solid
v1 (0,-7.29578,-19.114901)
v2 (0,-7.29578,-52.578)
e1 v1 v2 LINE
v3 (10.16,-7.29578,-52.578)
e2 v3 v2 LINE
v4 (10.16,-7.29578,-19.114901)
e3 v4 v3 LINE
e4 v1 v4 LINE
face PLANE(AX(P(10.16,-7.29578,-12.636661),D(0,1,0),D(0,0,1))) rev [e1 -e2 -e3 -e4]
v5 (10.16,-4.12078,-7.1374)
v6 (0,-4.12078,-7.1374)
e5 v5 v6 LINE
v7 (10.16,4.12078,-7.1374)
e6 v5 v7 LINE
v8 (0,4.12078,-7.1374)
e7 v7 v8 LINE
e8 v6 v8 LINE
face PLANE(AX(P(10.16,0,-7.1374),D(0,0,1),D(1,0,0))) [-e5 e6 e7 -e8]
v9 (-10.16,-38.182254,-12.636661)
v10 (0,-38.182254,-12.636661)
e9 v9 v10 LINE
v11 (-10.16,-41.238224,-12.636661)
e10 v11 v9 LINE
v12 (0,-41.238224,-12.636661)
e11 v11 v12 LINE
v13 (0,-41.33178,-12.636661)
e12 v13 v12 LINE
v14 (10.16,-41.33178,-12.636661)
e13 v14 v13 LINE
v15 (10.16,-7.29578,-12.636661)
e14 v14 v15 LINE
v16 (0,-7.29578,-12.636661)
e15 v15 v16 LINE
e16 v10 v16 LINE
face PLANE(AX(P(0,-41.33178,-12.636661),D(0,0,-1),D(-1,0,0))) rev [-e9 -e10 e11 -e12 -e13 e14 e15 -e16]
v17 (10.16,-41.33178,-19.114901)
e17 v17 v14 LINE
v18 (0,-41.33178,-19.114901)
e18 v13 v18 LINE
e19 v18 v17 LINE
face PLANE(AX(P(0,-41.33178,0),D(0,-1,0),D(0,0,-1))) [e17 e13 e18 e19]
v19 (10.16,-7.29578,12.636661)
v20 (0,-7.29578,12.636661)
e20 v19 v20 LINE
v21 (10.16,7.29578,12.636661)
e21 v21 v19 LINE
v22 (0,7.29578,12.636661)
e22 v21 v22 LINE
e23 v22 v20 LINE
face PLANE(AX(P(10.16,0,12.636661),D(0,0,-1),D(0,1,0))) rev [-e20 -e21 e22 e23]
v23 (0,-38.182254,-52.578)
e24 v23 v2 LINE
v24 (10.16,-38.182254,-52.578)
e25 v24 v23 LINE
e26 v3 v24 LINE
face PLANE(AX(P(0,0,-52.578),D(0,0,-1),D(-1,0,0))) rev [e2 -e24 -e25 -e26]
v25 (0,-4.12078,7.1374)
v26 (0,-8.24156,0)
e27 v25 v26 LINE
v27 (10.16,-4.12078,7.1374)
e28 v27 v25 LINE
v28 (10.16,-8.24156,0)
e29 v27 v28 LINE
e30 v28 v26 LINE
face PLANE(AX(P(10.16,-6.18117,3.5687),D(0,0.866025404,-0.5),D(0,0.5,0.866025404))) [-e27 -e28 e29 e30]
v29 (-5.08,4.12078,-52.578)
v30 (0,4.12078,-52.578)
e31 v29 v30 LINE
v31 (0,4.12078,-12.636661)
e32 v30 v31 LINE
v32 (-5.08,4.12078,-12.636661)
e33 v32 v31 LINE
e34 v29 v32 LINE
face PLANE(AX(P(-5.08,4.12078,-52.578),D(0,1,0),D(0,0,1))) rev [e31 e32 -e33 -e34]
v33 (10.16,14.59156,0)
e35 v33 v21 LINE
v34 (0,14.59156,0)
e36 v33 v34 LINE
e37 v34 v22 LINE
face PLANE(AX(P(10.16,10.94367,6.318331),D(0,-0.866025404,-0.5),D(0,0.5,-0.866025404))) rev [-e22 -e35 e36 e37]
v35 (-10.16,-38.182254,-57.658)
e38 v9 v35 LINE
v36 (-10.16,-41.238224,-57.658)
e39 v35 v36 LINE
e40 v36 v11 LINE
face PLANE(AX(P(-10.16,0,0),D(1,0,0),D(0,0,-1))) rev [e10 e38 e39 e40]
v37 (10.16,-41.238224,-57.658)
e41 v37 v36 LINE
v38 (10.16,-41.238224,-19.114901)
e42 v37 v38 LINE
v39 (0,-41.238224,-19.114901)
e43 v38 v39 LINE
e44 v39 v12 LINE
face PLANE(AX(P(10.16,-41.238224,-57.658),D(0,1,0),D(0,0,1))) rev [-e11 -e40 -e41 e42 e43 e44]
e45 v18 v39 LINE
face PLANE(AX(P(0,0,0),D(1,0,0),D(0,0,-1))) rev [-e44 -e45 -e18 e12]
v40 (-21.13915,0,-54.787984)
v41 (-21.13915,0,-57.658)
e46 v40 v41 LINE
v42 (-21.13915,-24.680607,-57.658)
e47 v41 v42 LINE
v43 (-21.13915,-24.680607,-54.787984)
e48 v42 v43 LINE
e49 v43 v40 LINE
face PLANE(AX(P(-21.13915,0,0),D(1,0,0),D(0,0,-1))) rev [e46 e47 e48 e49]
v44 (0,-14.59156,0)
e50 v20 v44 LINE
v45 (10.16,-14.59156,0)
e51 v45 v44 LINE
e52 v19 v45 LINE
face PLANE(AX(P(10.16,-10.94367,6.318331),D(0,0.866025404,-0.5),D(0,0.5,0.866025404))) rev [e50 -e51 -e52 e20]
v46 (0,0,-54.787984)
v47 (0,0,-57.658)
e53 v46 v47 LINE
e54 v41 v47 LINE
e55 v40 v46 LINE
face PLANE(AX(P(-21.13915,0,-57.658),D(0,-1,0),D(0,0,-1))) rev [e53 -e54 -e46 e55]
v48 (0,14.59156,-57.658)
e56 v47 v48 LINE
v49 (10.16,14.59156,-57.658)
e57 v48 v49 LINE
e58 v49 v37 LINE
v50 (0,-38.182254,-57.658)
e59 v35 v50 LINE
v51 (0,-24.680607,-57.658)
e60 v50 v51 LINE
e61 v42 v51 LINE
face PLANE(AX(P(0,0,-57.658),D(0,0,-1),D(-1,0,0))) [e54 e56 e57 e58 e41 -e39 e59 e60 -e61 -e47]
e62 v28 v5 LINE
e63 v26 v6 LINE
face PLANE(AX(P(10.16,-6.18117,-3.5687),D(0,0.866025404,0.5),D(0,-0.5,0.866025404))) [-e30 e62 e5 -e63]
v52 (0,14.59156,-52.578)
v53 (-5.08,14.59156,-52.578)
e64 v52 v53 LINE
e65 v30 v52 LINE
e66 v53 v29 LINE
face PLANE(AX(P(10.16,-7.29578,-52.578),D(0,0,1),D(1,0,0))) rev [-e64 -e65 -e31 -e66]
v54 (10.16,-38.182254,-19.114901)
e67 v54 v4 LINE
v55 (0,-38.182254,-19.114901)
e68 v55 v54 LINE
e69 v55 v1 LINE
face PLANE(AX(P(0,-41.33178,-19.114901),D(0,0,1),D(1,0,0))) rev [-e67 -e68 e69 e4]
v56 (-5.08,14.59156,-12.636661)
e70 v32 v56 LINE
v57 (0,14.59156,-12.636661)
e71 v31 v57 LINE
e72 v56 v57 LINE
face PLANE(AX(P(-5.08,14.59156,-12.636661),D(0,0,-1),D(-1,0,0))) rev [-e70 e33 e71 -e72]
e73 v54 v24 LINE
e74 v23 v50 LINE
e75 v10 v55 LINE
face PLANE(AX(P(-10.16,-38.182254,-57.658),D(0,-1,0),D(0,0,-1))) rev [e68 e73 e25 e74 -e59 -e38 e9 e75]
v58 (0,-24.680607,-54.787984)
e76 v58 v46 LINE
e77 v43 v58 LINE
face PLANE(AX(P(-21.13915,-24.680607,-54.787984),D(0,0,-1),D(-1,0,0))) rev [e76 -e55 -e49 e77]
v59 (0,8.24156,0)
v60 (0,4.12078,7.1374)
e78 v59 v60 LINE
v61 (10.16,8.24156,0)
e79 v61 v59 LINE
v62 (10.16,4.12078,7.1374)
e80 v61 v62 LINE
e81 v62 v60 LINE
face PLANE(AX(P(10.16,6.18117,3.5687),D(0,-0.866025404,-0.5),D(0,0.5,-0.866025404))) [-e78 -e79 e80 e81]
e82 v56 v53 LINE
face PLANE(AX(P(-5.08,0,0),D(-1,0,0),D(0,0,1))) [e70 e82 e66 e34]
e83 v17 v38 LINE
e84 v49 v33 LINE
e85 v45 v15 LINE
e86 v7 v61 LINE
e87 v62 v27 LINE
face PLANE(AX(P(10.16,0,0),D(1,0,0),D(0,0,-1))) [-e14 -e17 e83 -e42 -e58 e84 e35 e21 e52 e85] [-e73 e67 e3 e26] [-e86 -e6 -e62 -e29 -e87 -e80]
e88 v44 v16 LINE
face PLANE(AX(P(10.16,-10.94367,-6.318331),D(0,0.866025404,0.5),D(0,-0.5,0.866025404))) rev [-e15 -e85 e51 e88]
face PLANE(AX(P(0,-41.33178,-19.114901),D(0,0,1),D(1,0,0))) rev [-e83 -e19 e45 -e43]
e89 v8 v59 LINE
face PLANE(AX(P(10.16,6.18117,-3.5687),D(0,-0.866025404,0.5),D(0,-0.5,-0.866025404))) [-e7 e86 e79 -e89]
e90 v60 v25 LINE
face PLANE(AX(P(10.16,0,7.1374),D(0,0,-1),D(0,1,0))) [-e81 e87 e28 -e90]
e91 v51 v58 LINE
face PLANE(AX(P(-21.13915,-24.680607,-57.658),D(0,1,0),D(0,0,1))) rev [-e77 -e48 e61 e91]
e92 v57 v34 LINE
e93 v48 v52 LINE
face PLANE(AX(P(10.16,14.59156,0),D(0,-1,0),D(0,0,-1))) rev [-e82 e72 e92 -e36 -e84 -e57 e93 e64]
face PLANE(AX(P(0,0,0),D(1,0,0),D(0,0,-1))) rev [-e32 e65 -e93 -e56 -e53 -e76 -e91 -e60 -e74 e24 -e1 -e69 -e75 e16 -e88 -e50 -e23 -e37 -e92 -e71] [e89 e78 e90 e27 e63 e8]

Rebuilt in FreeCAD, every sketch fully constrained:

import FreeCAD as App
import Part
import Sketcher
Q = App.Units.Quantity


def add_polygon(sketch, points):
    """Adds a closed chain of lines whose ends are joined by coincident constraints."""
    first, n = sketch.GeometryCount, len(points)
    for a, b in zip(points, points[1:] + points[:1]):
        sketch.addGeometry(Part.LineSegment(App.Vector(*a, 0), App.Vector(*b, 0)), False)
    for i in range(n):
        sketch.addConstraint(Sketcher.Constraint("Coincident", first + i, 2, first + (i + 1) % n, 1))

doc = App.newDocument("Part")
params = doc.addObject("Spreadsheet::Sheet", "Params")
for row, (alias, value) in enumerate([
    ("pad1_length", "0.4 in"),
    ("sketch2_height", "2.07 in"),
    ("pad2_length", "0.4 in"),
    ("pad3_length", "0.2 in"),
    ("sketch4_width", "0.4 in"),
    ("pad4_length", "0.2 in"),
    ("sketch5_width", "0.4 in"),
    ("pad5_length", "1.34 in"),
    ("pad6_length", "0.4 in"),
    ("sketch7_width", "0.4 in"),
    ("pad7_length", "1.32 in"),
    ("pad8_length", "21.13915 mm"),
], start=1):
    params.set(f"A{row}", alias)
    params.set(f"B{row}", "=" + value)
    params.setAlias(f"B{row}", alias)

body = doc.addObject("PartDesign::Body", "Body")

sketch1 = body.newObject("Sketcher::SketchObject", "Sketch")
sketch1.AttachmentSupport = (doc.getObject("YZ_Plane"), [""])
sketch1.MapMode = "FlatFace"
add_polygon(sketch1, [(14.59156, 0), (7.29578, 12.636661), (-7.29578, 12.636661), (-14.59156, 0), (-7.29578, -12.636661), (7.29578, -12.636661)])
add_polygon(sketch1, [(4.12078, 7.1374), (8.24156, 0), (4.12078, -7.1374), (-4.12078, -7.1374), (-8.24156, 0), (-4.12078, 7.1374)])
sketch1.addConstraint([
    Sketcher.Constraint("Horizontal", 1),
    Sketcher.Constraint("Horizontal", 4),
    Sketcher.Constraint("Horizontal", 8),
    Sketcher.Constraint("Horizontal", 11),
    Sketcher.Constraint("Symmetric", 0, 2, 3, 2, -1, 1),
    Sketcher.Constraint("Symmetric", 2, 2, 5, 2, -1, 1),
    Sketcher.Constraint("Symmetric", 6, 2, 9, 2, -1, 1),
    Sketcher.Constraint("Symmetric", 7, 2, 10, 2, -1, 1),
    Sketcher.Constraint("PointOnObject", 2, 2, -1),
    Sketcher.Constraint("PointOnObject", 6, 2, -1),
    Sketcher.Constraint("Parallel", 2, 5),
    Sketcher.Constraint("Parallel", 3, 6),
    Sketcher.Constraint("Parallel", 5, 7),
    Sketcher.Constraint("Parallel", 6, 9),
    Sketcher.Constraint("Vertical", 1, 2, 3, 2),
    Sketcher.Constraint("Angle", 0, Q("120 deg")),
    Sketcher.Constraint("DistanceX", 6, 2, 5, 2, Q("0.25 in")),
    Sketcher.Constraint("DistanceY", 7, 2, -1, 1, Q("0.281 in")),
    Sketcher.Constraint("DistanceX", 7, 2, 4, 2, Q("0.125 in")),
    Sketcher.Constraint("DistanceX", 1, 2, 1, 1, 14.59156),
])
pad1 = body.newObject("PartDesign::Pad", "Pad")
pad1.Profile = sketch1
pad1.setExpression("Length", "Params.pad1_length")

sketch2 = body.newObject("Sketcher::SketchObject", "Sketch001")
sketch2.AttachmentSupport = (doc.getObject("YZ_Plane"), [""])
sketch2.MapMode = "FlatFace"
add_polygon(sketch2, [(-7.29578, -12.636661), (-7.29578, -52.578), (14.59156, -52.578), (14.59156, 0), (7.29578, -12.636661)])
sketch2.addConstraint([
    Sketcher.Constraint("Vertical", 0),
    Sketcher.Constraint("Horizontal", 1),
    Sketcher.Constraint("Vertical", 2),
    Sketcher.Constraint("Horizontal", 4),
    Sketcher.Constraint("PointOnObject", 2, 2, -1),
    Sketcher.Constraint("Angle", 3, Q("-120 deg")),
    Sketcher.Constraint("DistanceY", 2, 1, 2, 2, Q("2.07 in")),
    Sketcher.Constraint("DistanceX", 1, 1, 1, 2, 21.887339),
    Sketcher.Constraint("DistanceX", 4, 2, 4, 1, 14.59156),
    Sketcher.Constraint("DistanceX", 0, 2, -1, 1, 7.29578),
])
sketch2.setExpression("Constraints[11]", "Params.sketch2_height")
pad2 = body.newObject("PartDesign::Pad", "Pad001")
pad2.Profile = sketch2
pad2.setExpression("Length", "Params.pad2_length")

sketch3 = body.newObject("Sketcher::SketchObject", "Sketch002")
sketch3.AttachmentSupport = (doc.getObject("YZ_Plane"), [""])
sketch3.MapMode = "FlatFace"
add_polygon(sketch3, [(14.59156, -52.578), (4.12078, -52.578), (4.12078, -12.636661), (14.59156, -12.636661)])
sketch3.addConstraint([
    Sketcher.Constraint("Horizontal", 0),
    Sketcher.Constraint("Vertical", 1),
    Sketcher.Constraint("Horizontal", 2),
    Sketcher.Constraint("Vertical", 3),
    Sketcher.Constraint("DistanceY", 0, 2, -1, 1, Q("2.07 in")),
    Sketcher.Constraint("DistanceX", 0, 2, 0, 1, 10.47078),
    Sketcher.Constraint("DistanceY", 1, 1, 1, 2, 39.941339),
    Sketcher.Constraint("DistanceX", -1, 1, 0, 2, 4.12078),
])
pad3 = body.newObject("PartDesign::Pad", "Pad002")
pad3.Profile = sketch3
pad3.setExpression("Length", "Params.pad3_length")
pad3.Reversed = True

sketch4 = body.newObject("Sketcher::SketchObject", "Sketch003")
sketch4.AttachmentSupport = (doc.getObject("XY_Plane"), [""])
sketch4.MapMode = "FlatFace"
sketch4.AttachmentOffset = App.Placement(App.Vector(0, 0, -2.07 * 25.4), App.Rotation())
add_polygon(sketch4, [(10.16, 14.59156), (10.16, -41.238224), (0, -41.238224), (0, 14.59156)])
sketch4.addConstraint([
    Sketcher.Constraint("Vertical", 0),
    Sketcher.Constraint("Horizontal", 1),
    Sketcher.Constraint("Vertical", 2),
    Sketcher.Constraint("Horizontal", 3),
    Sketcher.Constraint("PointOnObject", 1, 2, -2),
    Sketcher.Constraint("DistanceX", 1, 2, 1, 1, Q("0.4 in")),
    Sketcher.Constraint("DistanceY", 0, 2, 0, 1, 55.829783),
    Sketcher.Constraint("DistanceY", -1, 1, 2, 2, 14.59156),
])
sketch4.setExpression("Constraints[9]", "Params.sketch4_width")
pad4 = body.newObject("PartDesign::Pad", "Pad003")
pad4.Profile = sketch4
pad4.setExpression("Length", "Params.pad4_length")
pad4.Reversed = True

sketch5 = body.newObject("Sketcher::SketchObject", "Sketch004")
sketch5.AttachmentSupport = (doc.getObject("XZ_Plane"), [""])
sketch5.MapMode = "FlatFace"
sketch5.AttachmentOffset = App.Placement(App.Vector(0, 0, 7.29578), App.Rotation())
add_polygon(sketch5, [(10.16, -19.114901), (10.16, -12.636661), (0, -12.636661), (0, -19.114901)])
sketch5.addConstraint([
    Sketcher.Constraint("Vertical", 0),
    Sketcher.Constraint("Horizontal", 1),
    Sketcher.Constraint("Vertical", 2),
    Sketcher.Constraint("Horizontal", 3),
    Sketcher.Constraint("PointOnObject", 1, 2, -2),
    Sketcher.Constraint("DistanceX", 1, 2, 1, 1, Q("0.4 in")),
    Sketcher.Constraint("DistanceY", 0, 1, 0, 2, 6.47824),
    Sketcher.Constraint("DistanceY", 2, 2, -1, 1, 19.114901),
])
sketch5.setExpression("Constraints[9]", "Params.sketch5_width")
pad5 = body.newObject("PartDesign::Pad", "Pad004")
pad5.Profile = sketch5
pad5.setExpression("Length", "Params.pad5_length")

sketch6 = body.newObject("Sketcher::SketchObject", "Sketch005")
sketch6.AttachmentSupport = (doc.getObject("YZ_Plane"), [""])
sketch6.MapMode = "FlatFace"
add_polygon(sketch6, [(-38.182254, -57.658), (-41.238224, -57.658), (-41.238224, -12.636661), (-38.182254, -12.636661)])
sketch6.addConstraint([
    Sketcher.Constraint("Horizontal", 0),
    Sketcher.Constraint("Vertical", 1),
    Sketcher.Constraint("Horizontal", 2),
    Sketcher.Constraint("Vertical", 3),
    Sketcher.Constraint("DistanceY", 0, 2, -1, 1, Q("2.27 in")),
    Sketcher.Constraint("DistanceX", 0, 2, 0, 1, 3.05597),
    Sketcher.Constraint("DistanceY", 1, 1, 1, 2, 45.021339),
    Sketcher.Constraint("DistanceX", 0, 2, -1, 1, 41.238224),
])
pad6 = body.newObject("PartDesign::Pad", "Pad005")
pad6.Profile = sketch6
pad6.setExpression("Length", "Params.pad6_length")
pad6.Reversed = True

sketch7 = body.newObject("Sketcher::SketchObject", "Sketch006")
sketch7.AttachmentSupport = (doc.getObject("XY_Plane"), [""])
sketch7.MapMode = "FlatFace"
sketch7.AttachmentOffset = App.Placement(App.Vector(0, 0, -2.07 * 25.4), App.Rotation())
add_polygon(sketch7, [(0, -38.182254), (0, -41.238224), (10.16, -41.238224), (10.16, -38.182254)])
sketch7.addConstraint([
    Sketcher.Constraint("Vertical", 0),
    Sketcher.Constraint("Horizontal", 1),
    Sketcher.Constraint("Vertical", 2),
    Sketcher.Constraint("Horizontal", 3),
    Sketcher.Constraint("PointOnObject", 0, 2, -2),
    Sketcher.Constraint("DistanceX", 1, 1, 1, 2, Q("0.4 in")),
    Sketcher.Constraint("DistanceY", 0, 2, 0, 1, 3.05597),
    Sketcher.Constraint("DistanceY", 0, 2, -1, 1, 41.238224),
])
sketch7.setExpression("Constraints[9]", "Params.sketch7_width")
pad7 = body.newObject("PartDesign::Pad", "Pad006")
pad7.Profile = sketch7
pad7.setExpression("Length", "Params.pad7_length")

sketch8 = body.newObject("Sketcher::SketchObject", "Sketch007")
sketch8.AttachmentSupport = (doc.getObject("YZ_Plane"), [""])
sketch8.MapMode = "FlatFace"
add_polygon(sketch8, [(0, -57.658), (-24.680607, -57.658), (-24.680607, -54.787984), (0, -54.787984)])
sketch8.addConstraint([
    Sketcher.Constraint("Horizontal", 0),
    Sketcher.Constraint("Vertical", 1),
    Sketcher.Constraint("Horizontal", 2),
    Sketcher.Constraint("Vertical", 3),
    Sketcher.Constraint("PointOnObject", 2, 2, -2),
    Sketcher.Constraint("DistanceY", 0, 2, -1, 1, Q("2.27 in")),
    Sketcher.Constraint("DistanceX", 0, 2, 0, 1, 24.680607),
    Sketcher.Constraint("DistanceY", 1, 1, 1, 2, 2.870016),
])
pad8 = body.newObject("PartDesign::Pad", "Pad007")
pad8.Profile = sketch8
pad8.setExpression("Length", "Params.pad8_length")
pad8.Reversed = True

doc.recompute()
